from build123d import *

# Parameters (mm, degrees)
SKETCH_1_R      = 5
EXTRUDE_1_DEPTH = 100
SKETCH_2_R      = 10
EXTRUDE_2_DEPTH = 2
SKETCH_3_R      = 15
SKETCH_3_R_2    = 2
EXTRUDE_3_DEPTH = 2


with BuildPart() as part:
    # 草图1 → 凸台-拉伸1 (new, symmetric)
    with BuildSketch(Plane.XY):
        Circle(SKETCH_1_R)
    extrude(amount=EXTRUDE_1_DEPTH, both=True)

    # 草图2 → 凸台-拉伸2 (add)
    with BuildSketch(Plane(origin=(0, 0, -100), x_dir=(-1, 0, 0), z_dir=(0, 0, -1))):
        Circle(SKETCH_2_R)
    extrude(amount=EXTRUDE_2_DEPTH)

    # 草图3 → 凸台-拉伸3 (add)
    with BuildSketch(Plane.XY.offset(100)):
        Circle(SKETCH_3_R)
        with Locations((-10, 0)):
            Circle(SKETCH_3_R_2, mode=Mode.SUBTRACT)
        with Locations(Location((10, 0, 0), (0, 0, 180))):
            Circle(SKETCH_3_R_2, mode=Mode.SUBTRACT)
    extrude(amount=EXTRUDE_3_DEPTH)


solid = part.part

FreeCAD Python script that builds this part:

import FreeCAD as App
import Part
import Sketcher

V = App.Vector

doc = App.newDocument("Part")
body = doc.addObject("PartDesign::Body", "Body")

# Sketch on XY plane
sketch1 = body.newObject("Sketcher::SketchObject", "Sketch")
sketch1.AttachmentSupport = (doc.getObject("XY_Plane"), [""])
sketch1.MapMode = "FlatFace"
sketch1.addGeometry(Part.Circle(V(0, 0, 0), V(0, 0, 1), 5), False)
sketch1.addConstraint(Sketcher.Constraint("Coincident", 0, 3, -1, 1))
sketch1.addConstraint(Sketcher.Constraint("Diameter", 0, 10.0))
pad1 = body.newObject("PartDesign::Pad", "Pad")
pad1.Profile = sketch1
pad1.Length = 200
pad1.Midplane = True

# Sketch on XY plane
sketch2 = body.newObject("Sketcher::SketchObject", "Sketch001")
sketch2.AttachmentSupport = (doc.getObject("XY_Plane"), [""])
sketch2.MapMode = "FlatFace"
sketch2.AttachmentOffset = App.Placement(V(0, 0, -100), App.Rotation())
sketch2.addGeometry(Part.Circle(V(0, 0, 0), V(0, 0, 1), 10), False)
sketch2.addConstraint(Sketcher.Constraint("Coincident", 0, 3, -1, 1))
sketch2.addConstraint(Sketcher.Constraint("Diameter", 0, 20.0))
pad2 = body.newObject("PartDesign::Pad", "Pad001")
pad2.Profile = sketch2
pad2.Length = 2
pad2.Reversed = True

# Sketch on XY plane
sketch3 = body.newObject("Sketcher::SketchObject", "Sketch002")
sketch3.AttachmentSupport = (doc.getObject("XY_Plane"), [""])
sketch3.MapMode = "FlatFace"
sketch3.AttachmentOffset = App.Placement(V(0, 0, 100), App.Rotation())
sketch3.addGeometry(Part.Circle(V(0, 0, 0), V(0, 0, 1), 15), False)
sketch3.addGeometry(Part.Circle(V(-10, 0, 0), V(0, 0, 1), 2), False)
sketch3.addGeometry(Part.Circle(V(10, 0, 0), V(0, 0, 1), 2), False)
sketch3.addConstraint(Sketcher.Constraint("Coincident", 0, 3, -1, 1))
sketch3.addConstraint(Sketcher.Constraint("Equal", 1, 2))
sketch3.addConstraint(Sketcher.Constraint("Symmetric", 1, 3, 2, 3, -1, 1))
sketch3.addConstraint(Sketcher.Constraint("PointOnObject", 1, 3, -1))
sketch3.addConstraint(Sketcher.Constraint("Diameter", 0, 30.0))
sketch3.addConstraint(Sketcher.Constraint("Diameter", 1, 4.0))
sketch3.addConstraint(Sketcher.Constraint("DistanceX", 1, 3, -1, 1, 10.0))
pad3 = body.newObject("PartDesign::Pad", "Pad002")
pad3.Profile = sketch3
pad3.Length = 2

doc.recompute()
